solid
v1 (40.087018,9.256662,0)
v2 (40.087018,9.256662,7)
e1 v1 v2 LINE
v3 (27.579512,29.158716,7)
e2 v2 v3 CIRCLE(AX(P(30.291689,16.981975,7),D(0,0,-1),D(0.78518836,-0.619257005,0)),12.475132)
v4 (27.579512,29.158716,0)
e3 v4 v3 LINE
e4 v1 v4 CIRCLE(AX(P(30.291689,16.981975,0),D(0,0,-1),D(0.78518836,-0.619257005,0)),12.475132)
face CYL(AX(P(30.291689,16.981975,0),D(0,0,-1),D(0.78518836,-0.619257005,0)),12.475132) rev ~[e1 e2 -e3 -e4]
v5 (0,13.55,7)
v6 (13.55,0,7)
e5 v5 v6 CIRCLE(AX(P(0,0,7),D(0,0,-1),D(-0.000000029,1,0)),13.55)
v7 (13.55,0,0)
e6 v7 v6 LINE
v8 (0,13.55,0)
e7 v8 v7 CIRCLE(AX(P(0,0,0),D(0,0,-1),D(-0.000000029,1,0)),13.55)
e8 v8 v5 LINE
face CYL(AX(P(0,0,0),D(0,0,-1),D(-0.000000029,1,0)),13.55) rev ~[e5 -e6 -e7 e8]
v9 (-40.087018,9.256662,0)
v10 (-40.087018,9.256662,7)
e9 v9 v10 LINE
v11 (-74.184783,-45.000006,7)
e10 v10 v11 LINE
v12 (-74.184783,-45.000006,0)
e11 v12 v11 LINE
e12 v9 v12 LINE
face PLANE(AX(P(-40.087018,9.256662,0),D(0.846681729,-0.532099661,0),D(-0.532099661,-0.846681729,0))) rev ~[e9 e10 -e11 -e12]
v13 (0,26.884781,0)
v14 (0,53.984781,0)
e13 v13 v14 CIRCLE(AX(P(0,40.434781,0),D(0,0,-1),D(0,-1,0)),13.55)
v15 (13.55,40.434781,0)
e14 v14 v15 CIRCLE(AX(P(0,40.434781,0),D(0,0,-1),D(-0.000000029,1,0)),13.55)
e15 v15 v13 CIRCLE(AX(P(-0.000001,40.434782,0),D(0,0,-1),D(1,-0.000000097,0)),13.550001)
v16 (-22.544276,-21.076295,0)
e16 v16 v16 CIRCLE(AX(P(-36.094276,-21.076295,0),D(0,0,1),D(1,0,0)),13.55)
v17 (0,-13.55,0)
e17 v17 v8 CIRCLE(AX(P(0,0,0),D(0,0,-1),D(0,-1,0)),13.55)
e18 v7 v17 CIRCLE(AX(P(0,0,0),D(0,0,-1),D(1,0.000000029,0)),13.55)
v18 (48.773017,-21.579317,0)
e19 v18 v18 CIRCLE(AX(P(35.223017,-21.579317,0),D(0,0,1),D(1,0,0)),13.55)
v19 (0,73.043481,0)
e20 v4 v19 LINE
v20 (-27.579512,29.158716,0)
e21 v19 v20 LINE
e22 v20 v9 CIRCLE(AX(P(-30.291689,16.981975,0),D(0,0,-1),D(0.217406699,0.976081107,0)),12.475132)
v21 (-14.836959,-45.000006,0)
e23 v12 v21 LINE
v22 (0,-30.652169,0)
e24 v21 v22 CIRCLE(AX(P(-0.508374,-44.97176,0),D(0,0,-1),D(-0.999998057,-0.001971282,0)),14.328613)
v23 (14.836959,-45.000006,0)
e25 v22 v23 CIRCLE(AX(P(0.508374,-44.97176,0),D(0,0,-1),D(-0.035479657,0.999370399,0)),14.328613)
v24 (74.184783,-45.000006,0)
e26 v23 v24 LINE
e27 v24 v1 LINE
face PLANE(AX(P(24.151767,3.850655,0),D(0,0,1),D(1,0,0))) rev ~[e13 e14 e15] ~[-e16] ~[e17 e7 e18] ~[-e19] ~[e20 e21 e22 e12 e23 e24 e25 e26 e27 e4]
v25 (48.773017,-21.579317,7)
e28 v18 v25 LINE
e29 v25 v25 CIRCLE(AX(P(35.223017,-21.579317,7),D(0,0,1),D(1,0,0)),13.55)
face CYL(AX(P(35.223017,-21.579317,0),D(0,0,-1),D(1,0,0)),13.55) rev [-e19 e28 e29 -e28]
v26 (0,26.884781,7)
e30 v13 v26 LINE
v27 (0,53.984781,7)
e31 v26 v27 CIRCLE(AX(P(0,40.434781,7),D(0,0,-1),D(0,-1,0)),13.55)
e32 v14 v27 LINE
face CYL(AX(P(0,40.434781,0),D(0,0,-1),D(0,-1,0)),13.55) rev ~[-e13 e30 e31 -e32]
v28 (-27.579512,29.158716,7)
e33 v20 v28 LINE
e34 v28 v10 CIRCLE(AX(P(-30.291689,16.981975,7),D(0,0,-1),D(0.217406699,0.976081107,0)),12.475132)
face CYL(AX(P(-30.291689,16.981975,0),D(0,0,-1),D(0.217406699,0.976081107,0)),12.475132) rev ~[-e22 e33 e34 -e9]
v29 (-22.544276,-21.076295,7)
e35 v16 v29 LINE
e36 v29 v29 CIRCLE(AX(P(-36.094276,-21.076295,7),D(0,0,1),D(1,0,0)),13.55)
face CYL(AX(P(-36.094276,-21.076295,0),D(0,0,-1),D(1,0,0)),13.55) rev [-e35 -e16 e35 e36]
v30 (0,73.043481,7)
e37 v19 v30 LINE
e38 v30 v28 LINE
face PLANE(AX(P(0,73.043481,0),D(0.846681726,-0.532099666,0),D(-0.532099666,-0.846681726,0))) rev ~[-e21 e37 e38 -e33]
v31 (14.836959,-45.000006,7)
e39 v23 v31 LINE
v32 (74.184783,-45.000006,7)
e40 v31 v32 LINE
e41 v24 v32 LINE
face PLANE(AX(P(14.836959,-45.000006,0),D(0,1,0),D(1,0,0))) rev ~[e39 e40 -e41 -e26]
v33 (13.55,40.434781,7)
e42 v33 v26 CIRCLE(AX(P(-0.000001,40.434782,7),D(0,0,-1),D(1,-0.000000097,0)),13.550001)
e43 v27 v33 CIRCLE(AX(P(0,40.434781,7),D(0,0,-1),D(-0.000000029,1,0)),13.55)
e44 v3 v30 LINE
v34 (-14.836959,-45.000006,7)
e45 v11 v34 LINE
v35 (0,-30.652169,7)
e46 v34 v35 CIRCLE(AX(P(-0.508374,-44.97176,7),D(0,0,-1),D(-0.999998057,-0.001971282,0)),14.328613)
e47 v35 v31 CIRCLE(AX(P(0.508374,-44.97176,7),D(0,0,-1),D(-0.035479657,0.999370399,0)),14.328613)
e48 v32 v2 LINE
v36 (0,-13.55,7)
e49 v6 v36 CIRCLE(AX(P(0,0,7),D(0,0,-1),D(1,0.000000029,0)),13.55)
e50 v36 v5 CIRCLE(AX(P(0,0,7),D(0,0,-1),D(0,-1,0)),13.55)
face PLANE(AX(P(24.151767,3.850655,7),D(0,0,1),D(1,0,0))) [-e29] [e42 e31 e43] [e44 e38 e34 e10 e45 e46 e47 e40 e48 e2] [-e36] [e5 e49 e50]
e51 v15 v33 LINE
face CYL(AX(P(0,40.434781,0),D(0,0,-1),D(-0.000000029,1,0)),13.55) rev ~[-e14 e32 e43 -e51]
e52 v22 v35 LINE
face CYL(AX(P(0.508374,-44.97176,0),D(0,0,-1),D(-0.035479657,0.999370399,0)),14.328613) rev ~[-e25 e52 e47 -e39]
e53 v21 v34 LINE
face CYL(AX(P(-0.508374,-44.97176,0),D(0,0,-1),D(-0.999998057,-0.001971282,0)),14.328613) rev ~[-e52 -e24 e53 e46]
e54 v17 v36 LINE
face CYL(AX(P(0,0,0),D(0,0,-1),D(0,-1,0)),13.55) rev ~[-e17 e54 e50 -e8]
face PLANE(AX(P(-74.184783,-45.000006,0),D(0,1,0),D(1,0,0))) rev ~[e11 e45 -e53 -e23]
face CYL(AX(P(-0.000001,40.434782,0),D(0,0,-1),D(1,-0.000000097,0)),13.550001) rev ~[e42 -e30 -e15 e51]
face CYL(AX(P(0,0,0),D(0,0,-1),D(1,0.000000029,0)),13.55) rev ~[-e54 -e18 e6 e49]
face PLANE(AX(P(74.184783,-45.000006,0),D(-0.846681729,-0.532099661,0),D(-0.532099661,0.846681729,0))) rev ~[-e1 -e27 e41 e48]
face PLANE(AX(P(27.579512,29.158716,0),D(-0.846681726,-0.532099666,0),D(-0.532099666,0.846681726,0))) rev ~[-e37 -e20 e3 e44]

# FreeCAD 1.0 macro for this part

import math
import FreeCAD as App
import Part
import Sketcher
Q = App.Units.Quantity

doc = App.newDocument("Part")
body = doc.addObject("PartDesign::Body", "Body")

sketch1 = body.newObject("Sketcher::SketchObject", "Sketch")
sketch1.AttachmentSupport = (doc.getObject("XY_Plane"), [""])
sketch1.MapMode = "FlatFace"
sketch1.addGeometry([
    Part.LineSegment(App.Vector(28, 29, 0), App.Vector(0, 73, 0)),
    Part.LineSegment(App.Vector(0, 73, 0), App.Vector(-28, 29, 0)),
    Part.ArcOfCircle(Part.Circle(App.Vector(-30, 17, 0), App.Vector(0, 0, 1), 12), math.radians(-142), math.radians(77)),
    Part.LineSegment(App.Vector(-40, 9, 0), App.Vector(-74, -45, 0)),
    Part.LineSegment(App.Vector(-74, -45, 0), App.Vector(-15, -45, 0)),
    Part.ArcOfCircle(Part.Circle(App.Vector(-1, -45, 0), App.Vector(0, 0, 1), 14), math.radians(88), math.radians(180)),
    Part.ArcOfCircle(Part.Circle(App.Vector(1, -45, 0), App.Vector(0, 0, 1), 14), math.radians(0), math.radians(92)),
    Part.LineSegment(App.Vector(15, -45, 0), App.Vector(74, -45, 0)),
    Part.LineSegment(App.Vector(74, -45, 0), App.Vector(40, 9, 0)),
    Part.ArcOfCircle(Part.Circle(App.Vector(30, 17, 0), App.Vector(0, 0, 1), 12), math.radians(103), math.radians(322)),
    Part.Circle(App.Vector(-36, -21, 0), App.Vector(0, 0, 1), 14),
    Part.Circle(App.Vector(35, -22, 0), App.Vector(0, 0, 1), 14),
    Part.ArcOfCircle(Part.Circle(App.Vector(0, 0, 0), App.Vector(0, 0, 1), 14), math.radians(0), math.radians(90)),
    Part.ArcOfCircle(Part.Circle(App.Vector(0, 0, 0), App.Vector(0, 0, 1), 14), math.radians(-90), math.radians(0)),
    Part.ArcOfCircle(Part.Circle(App.Vector(0, 0, 0), App.Vector(0, 0, 1), 14), math.radians(90), math.radians(270)),
    Part.ArcOfCircle(Part.Circle(App.Vector(0, 40, 0), App.Vector(0, 0, 1), 14), math.radians(-90), math.radians(0)),
    Part.ArcOfCircle(Part.Circle(App.Vector(0, 40, 0), App.Vector(0, 0, 1), 14), math.radians(90), math.radians(270)),
    Part.ArcOfCircle(Part.Circle(App.Vector(0, 40, 0), App.Vector(0, 0, 1), 14), math.radians(0), math.radians(90)),
], False)
sketch1.addConstraint([
    Sketcher.Constraint("Coincident", 0, 2, 1, 1),
    Sketcher.Constraint("Coincident", 1, 2, 2, 2),
    Sketcher.Constraint("Coincident", 2, 1, 3, 1),
    Sketcher.Constraint("Coincident", 3, 2, 4, 1),
    Sketcher.Constraint("Coincident", 4, 2, 5, 2),
    Sketcher.Constraint("Coincident", 5, 1, 6, 2),
    Sketcher.Constraint("Coincident", 6, 1, 7, 1),
    Sketcher.Constraint("Coincident", 7, 2, 8, 1),
    Sketcher.Constraint("Coincident", 8, 2, 9, 2),
    Sketcher.Constraint("Coincident", 9, 1, 0, 1),
    Sketcher.Constraint("Tangent", 12, 1, 13, 2),
    Sketcher.Constraint("Tangent", 13, 1, 14, 2),
    Sketcher.Constraint("Tangent", 14, 1, 12, 2),
    Sketcher.Constraint("Tangent", 15, 1, 16, 2),
    Sketcher.Constraint("Tangent", 16, 1, 17, 2),
    Sketcher.Constraint("Tangent", 17, 1, 15, 2),
    Sketcher.Constraint("Horizontal", 4),
    Sketcher.Constraint("Horizontal", 7),
    Sketcher.Constraint("Coincident", 12, 3, -1, 1),
    Sketcher.Constraint("Equal", 5, 6),
    Sketcher.Constraint("Equal", 2, 9),
    Sketcher.Constraint("Equal", 10, 11),
    Sketcher.Constraint("Equal", 11, 12),
    Sketcher.Constraint("Equal", 14, 15),
    Sketcher.Constraint("Symmetric", 5, 3, 6, 3, -2),
    Sketcher.Constraint("Symmetric", 2, 3, 9, 3, -2),
    Sketcher.Constraint("Symmetric", 3, 2, 7, 2, -2),
    Sketcher.Constraint("PointOnObject", 15, 3, -2),
    Sketcher.Constraint("PointOnObject", 0, 2, -2),
    Sketcher.Constraint("PointOnObject", 12, 1, -1),
    Sketcher.Constraint("PointOnObject", 13, 1, -2),
    Sketcher.Constraint("PointOnObject", 14, 1, -2),
    Sketcher.Constraint("PointOnObject", 15, 1, -2),
    Sketcher.Constraint("PointOnObject", 16, 1, -2),
    Sketcher.Constraint("Parallel", 1, 3),
    Sketcher.Constraint("Parallel", 0, 8),
    Sketcher.Constraint("Horizontal", 2, 1, 8, 2),
    Sketcher.Constraint("Horizontal", 16, 3, 17, 1),
    Sketcher.Constraint("Diameter", 10, Q("27.1 mm")),
    Sketcher.Constraint("Radius", 2, Q("12.475132 mm")),
    Sketcher.Constraint("Radius", 5, Q("14.328613 mm")),
    Sketcher.Constraint("DistanceX", 11, 3, 8, 2, Q("4.864001 mm")),
    Sketcher.Constraint("DistanceX", 10, 3, 5, 3, Q("35.585902 mm")),
    Sketcher.Constraint("DistanceY", 15, 3, 0, 2, Q("32.608699 mm")),
    Sketcher.Constraint("Distance", 3, Q("64.081539 mm")),
    Sketcher.Constraint("DistanceX", 4, 1, 4, 2, Q("59.347824 mm")),
    Sketcher.Constraint("DistanceX", 2, 3, -1, 1, Q("30.291689 mm")),
    Sketcher.Constraint("DistanceY", 5, 3, -1, 1, Q("44.97176 mm")),
    Sketcher.Constraint("DistanceY", -1, 1, 16, 3, Q("40.434781 mm")),
    Sketcher.Constraint("DistanceX", 4, 2, -1, 1, Q("14.836959 mm")),
    Sketcher.Constraint("DistanceY", 10, 3, 2, 3, Q("38.05827 mm")),
    Sketcher.Constraint("DistanceX", 5, 3, 11, 3, Q("35.731391 mm")),
    Sketcher.Constraint("DistanceY", 2, 3, 1, 2, Q("12.176741 mm")),
    Sketcher.Constraint("DistanceY", 6, 1, 11, 3, Q("23.420689 mm")),
])
pad1 = body.newObject("PartDesign::Pad", "Pad")
pad1.Profile = sketch1
pad1.Length = 7

doc.recompute()
